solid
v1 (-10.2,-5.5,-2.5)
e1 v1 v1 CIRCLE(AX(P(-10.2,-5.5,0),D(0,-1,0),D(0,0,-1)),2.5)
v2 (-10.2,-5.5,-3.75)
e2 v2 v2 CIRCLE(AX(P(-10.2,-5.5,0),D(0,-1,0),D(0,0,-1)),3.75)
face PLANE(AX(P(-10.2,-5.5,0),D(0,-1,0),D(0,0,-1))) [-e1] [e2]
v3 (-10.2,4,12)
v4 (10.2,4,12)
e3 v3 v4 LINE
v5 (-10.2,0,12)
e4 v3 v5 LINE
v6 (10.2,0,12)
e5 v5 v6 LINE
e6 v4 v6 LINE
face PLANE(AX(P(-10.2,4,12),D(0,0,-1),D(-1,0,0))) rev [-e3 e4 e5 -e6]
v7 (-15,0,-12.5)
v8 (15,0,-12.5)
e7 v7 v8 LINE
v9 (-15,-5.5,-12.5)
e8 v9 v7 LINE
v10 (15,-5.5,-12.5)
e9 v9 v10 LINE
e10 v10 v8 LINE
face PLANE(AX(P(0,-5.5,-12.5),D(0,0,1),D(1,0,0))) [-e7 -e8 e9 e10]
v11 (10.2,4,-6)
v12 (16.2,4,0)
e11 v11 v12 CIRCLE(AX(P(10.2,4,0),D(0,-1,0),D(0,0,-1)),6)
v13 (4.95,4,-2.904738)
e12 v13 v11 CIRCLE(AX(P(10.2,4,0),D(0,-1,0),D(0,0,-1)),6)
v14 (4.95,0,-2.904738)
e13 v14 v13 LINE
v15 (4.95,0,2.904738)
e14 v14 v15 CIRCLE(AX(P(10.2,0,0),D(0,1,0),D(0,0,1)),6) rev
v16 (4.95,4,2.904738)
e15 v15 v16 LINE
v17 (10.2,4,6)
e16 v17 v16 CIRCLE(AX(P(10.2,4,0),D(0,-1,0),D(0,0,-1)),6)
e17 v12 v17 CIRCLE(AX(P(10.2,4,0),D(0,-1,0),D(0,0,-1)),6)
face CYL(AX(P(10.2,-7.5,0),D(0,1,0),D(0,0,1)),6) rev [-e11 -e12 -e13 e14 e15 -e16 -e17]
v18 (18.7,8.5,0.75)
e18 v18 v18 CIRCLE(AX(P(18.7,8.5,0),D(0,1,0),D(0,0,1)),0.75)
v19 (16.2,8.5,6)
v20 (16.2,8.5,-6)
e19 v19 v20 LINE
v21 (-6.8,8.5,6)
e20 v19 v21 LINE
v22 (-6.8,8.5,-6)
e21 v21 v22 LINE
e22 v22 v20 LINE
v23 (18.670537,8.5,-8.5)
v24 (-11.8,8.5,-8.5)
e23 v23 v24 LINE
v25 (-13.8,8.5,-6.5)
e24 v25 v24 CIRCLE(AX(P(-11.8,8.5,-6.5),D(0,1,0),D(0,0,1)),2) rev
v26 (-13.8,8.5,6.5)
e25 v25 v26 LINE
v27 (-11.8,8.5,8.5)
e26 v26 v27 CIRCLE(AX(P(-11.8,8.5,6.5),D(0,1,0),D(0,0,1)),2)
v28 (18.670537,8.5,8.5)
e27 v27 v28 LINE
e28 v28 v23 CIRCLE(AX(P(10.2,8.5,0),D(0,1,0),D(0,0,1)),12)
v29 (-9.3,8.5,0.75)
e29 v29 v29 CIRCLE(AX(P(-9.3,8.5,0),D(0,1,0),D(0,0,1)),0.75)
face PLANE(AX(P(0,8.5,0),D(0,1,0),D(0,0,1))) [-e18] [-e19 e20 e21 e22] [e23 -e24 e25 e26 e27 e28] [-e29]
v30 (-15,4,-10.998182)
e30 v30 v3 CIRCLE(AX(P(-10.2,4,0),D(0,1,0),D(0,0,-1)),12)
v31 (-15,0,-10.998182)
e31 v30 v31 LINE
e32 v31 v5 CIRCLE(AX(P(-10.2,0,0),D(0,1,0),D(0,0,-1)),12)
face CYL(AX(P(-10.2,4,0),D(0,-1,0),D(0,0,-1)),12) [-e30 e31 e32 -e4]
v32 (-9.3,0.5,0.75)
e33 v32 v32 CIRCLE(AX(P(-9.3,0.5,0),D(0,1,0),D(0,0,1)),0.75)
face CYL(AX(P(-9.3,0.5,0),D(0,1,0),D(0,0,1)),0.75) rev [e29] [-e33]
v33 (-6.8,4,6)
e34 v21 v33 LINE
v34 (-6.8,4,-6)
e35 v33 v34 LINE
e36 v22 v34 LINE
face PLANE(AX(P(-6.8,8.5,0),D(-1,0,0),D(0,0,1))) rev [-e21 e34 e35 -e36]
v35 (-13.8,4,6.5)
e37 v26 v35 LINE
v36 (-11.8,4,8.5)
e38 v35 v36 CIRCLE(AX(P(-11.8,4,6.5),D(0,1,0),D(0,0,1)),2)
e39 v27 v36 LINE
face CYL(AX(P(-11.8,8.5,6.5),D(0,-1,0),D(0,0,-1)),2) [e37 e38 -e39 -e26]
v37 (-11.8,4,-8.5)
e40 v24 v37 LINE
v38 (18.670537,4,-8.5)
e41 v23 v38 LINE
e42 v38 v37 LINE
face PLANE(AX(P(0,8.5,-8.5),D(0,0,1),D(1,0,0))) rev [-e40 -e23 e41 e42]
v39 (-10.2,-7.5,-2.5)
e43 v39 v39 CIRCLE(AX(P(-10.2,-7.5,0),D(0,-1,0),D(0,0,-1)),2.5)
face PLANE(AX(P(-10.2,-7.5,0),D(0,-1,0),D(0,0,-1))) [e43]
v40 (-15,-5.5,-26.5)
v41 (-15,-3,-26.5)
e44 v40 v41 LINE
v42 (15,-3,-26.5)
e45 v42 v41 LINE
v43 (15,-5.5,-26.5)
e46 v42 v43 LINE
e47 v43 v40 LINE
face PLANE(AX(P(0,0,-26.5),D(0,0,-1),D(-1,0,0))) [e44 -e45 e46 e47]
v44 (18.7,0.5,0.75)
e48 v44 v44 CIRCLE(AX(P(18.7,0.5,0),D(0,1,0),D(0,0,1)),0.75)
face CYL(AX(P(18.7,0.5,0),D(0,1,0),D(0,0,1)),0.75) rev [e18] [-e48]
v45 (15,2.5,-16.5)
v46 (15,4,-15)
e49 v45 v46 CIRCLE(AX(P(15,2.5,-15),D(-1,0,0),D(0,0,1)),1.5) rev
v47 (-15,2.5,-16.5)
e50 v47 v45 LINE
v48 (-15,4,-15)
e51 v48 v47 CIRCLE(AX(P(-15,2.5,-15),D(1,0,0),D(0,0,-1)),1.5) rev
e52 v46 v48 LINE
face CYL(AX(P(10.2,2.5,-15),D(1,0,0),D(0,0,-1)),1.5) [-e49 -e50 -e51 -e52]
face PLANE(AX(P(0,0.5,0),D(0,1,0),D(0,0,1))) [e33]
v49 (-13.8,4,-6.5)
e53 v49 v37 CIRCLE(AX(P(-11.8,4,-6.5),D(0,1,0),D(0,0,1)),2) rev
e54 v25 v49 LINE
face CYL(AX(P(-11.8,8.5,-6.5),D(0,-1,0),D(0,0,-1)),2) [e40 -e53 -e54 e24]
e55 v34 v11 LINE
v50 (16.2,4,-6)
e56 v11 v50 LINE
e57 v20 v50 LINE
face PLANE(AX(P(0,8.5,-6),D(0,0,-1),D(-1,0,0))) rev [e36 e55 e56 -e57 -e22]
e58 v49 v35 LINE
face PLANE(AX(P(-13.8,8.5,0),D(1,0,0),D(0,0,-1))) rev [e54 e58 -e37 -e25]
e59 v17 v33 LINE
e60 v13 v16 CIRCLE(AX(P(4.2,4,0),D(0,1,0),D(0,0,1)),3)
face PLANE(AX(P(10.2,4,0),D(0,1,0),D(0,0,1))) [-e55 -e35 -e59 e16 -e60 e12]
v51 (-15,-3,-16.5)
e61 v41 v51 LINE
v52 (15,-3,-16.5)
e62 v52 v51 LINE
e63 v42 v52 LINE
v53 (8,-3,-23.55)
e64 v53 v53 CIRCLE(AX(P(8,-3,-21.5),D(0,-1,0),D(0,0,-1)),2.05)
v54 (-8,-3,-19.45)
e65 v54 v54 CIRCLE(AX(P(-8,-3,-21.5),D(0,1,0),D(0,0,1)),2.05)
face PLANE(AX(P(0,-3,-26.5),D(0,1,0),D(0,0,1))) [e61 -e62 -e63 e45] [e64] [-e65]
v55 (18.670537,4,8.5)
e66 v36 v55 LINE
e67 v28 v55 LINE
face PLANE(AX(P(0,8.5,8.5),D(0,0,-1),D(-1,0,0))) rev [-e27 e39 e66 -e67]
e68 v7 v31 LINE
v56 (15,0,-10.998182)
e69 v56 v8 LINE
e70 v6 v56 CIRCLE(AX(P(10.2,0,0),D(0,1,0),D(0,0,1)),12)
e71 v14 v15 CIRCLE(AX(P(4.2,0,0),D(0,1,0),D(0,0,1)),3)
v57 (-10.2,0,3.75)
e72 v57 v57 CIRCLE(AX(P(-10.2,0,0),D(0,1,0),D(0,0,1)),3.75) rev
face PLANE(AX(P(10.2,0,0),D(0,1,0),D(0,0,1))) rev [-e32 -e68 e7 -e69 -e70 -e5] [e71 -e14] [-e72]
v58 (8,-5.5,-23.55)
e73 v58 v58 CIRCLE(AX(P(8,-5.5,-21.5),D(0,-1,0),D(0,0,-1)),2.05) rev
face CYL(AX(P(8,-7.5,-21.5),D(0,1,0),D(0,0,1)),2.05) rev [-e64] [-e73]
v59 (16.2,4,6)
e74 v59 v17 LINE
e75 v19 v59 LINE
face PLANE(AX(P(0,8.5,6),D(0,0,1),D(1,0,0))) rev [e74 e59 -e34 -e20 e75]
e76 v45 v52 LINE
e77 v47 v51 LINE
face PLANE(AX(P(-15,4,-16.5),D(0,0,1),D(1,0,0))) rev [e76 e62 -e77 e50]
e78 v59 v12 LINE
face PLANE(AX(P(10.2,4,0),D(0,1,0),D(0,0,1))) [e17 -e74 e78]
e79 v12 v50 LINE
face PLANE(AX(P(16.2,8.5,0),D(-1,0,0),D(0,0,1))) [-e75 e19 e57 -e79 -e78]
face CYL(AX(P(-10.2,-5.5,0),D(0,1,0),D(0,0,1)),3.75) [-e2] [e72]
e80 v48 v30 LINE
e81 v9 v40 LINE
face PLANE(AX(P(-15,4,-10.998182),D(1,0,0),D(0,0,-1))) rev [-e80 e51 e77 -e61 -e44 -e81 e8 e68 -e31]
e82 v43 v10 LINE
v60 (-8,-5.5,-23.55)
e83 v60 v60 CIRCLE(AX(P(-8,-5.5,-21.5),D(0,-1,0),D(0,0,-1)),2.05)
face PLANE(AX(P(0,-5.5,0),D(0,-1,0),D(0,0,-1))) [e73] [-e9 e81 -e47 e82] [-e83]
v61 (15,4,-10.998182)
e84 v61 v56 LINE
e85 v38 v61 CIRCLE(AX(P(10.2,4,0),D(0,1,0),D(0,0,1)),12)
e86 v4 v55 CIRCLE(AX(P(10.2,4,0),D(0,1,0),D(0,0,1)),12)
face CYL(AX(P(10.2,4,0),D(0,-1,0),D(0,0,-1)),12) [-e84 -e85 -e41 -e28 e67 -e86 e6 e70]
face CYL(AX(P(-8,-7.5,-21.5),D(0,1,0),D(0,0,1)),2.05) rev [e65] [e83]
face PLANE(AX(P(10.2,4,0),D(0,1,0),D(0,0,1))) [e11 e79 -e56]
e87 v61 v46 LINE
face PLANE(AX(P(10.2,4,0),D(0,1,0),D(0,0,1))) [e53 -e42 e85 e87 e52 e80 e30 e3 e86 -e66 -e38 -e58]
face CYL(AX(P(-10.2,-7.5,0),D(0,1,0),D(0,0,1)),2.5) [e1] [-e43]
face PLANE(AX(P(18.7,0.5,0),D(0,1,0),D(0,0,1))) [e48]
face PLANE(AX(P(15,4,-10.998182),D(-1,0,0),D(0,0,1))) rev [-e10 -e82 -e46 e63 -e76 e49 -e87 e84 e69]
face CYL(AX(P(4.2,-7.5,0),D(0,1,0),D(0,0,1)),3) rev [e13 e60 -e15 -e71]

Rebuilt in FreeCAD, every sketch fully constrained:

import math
import FreeCAD as App
import Part
import Sketcher
Q = App.Units.Quantity


def edges_at(feature, points):
    """Names of the edges that pass closest to the given points."""
    edges = feature.Shape.Edges
    near = lambda p: min(range(len(edges)), key=lambda i: edges[i].distToShape(Part.Vertex(*p))[0])
    return sorted({f"Edge{near(p) + 1}" for p in points})

doc = App.newDocument("Part")
body = doc.addObject("PartDesign::Body", "Body")

# Sketch on XZ plane
sketch1 = body.newObject("Sketcher::SketchObject", "Sketch")
sketch1.AttachmentSupport = (doc.getObject("XZ_Plane"), [""])
sketch1.MapMode = "FlatFace"
sketch1.addGeometry([
    Part.LineSegment(App.Vector(-15, -16.5, 0), App.Vector(-15, -10.998182, 0)),  # 0
    Part.ArcOfCircle(Part.Circle(App.Vector(-10.2, 0, 0), App.Vector(0, 0, 1), 12), math.radians(90), math.radians(246.421822)),  # 1
    Part.LineSegment(App.Vector(-10.2, 12, 0), App.Vector(10.2, 12, 0)),  # 2
    Part.ArcOfCircle(Part.Circle(App.Vector(10.2, 0, 0), App.Vector(0, 0, 1), 12), math.radians(-66.421822), math.radians(90)),  # 3
    Part.LineSegment(App.Vector(15, -10.998182, 0), App.Vector(15, -16.5, 0)),  # 4
    Part.LineSegment(App.Vector(15, -16.5, 0), App.Vector(-15, -16.5, 0)),  # 5
], False)
sketch1.addConstraint([
    Sketcher.Constraint("Coincident", 0, 2, 1, 2),
    Sketcher.Constraint("Tangent", 1, 1, 2, 1),
    Sketcher.Constraint("Tangent", 2, 2, 3, 2),
    Sketcher.Constraint("Coincident", 3, 1, 4, 1),
    Sketcher.Constraint("Coincident", 4, 2, 5, 1),
    Sketcher.Constraint("Coincident", 5, 2, 0, 1),
    Sketcher.Constraint("Vertical", 0),
    Sketcher.Constraint("Horizontal", 2),
    Sketcher.Constraint("Vertical", 4),
    Sketcher.Constraint("Horizontal", 5),
    Sketcher.Constraint("Equal", 1, 3),
    Sketcher.Constraint("Symmetric", 1, 3, 3, 3, -1, 1),
    Sketcher.Constraint("Horizontal", 0, 2, 3, 1),
    Sketcher.Constraint("Radius", 1, Q("12 mm")),
    Sketcher.Constraint("DistanceX", 5, 2, 5, 1, Q("30 mm")),
    Sketcher.Constraint("DistanceX", 2, 1, 2, 2, Q("20.4 mm")),
    Sketcher.Constraint("DistanceY", 4, 2, -1, 1, Q("16.5 mm")),
])
pad1 = body.newObject("PartDesign::Pad", "Pad")
pad1.Profile = sketch1
pad1.Length = 4
pad1.Reversed = True

# Sketch on XZ plane
sketch2 = body.newObject("Sketcher::SketchObject", "Sketch001")
sketch2.AttachmentSupport = (doc.getObject("XZ_Plane"), [""])
sketch2.MapMode = "FlatFace"
sketch2.addGeometry(Part.Circle(App.Vector(-10.2, 0, 0), App.Vector(0, 0, 1), 3.75), False)
sketch2.addConstraint([
    Sketcher.Constraint("PointOnObject", 0, 3, -1),
    Sketcher.Constraint("Diameter", 0, Q("7.5 mm")),
    Sketcher.Constraint("DistanceX", 0, 3, -1, 1, Q("10.2 mm")),
])
pad2 = body.newObject("PartDesign::Pad", "Pad001")
pad2.Profile = sketch2
pad2.Length = 5.5

# Sketch on XZ plane
sketch3 = body.newObject("Sketcher::SketchObject", "Sketch002")
sketch3.AttachmentSupport = (doc.getObject("XZ_Plane"), [""])
sketch3.MapMode = "FlatFace"
sketch3.AttachmentOffset = App.Placement(App.Vector(0, 0, 5.5), App.Rotation())
sketch3.addGeometry(Part.Circle(App.Vector(-10.2, 0, 0), App.Vector(0, 0, 1), 2.5), False)
sketch3.addConstraint([
    Sketcher.Constraint("PointOnObject", 0, 3, -1),
    Sketcher.Constraint("Diameter", 0, Q("5 mm")),
    Sketcher.Constraint("DistanceX", 0, 3, -1, 1, Q("10.2 mm")),
])
pad3 = body.newObject("PartDesign::Pad", "Pad002")
pad3.Profile = sketch3
pad3.Length = 2

# Sketch on XZ plane
sketch4 = body.newObject("Sketcher::SketchObject", "Sketch003")
sketch4.AttachmentSupport = (doc.getObject("XZ_Plane"), [""])
sketch4.MapMode = "FlatFace"
sketch4.AttachmentOffset = App.Placement(App.Vector(0, 0, -4), App.Rotation())
sketch4.addGeometry([
    Part.ArcOfCircle(Part.Circle(App.Vector(10.2, 0, 0), App.Vector(0, 0, 1), 6), math.radians(-151.044976), math.radians(151.044976)),
    Part.ArcOfCircle(Part.Circle(App.Vector(4.2, 0, 0), App.Vector(0, 0, 1), 3), math.radians(75.522488), math.radians(284.477512)),
], False)
sketch4.addConstraint([
    Sketcher.Constraint("Coincident", 0, 1, 1, 2),
    Sketcher.Constraint("Coincident", 1, 1, 0, 2),
    Sketcher.Constraint("Symmetric", 0, 1, 1, 1, -1),
    Sketcher.Constraint("Radius", 0, Q("6 mm")),
    Sketcher.Constraint("Radius", 1, Q("3 mm")),
    Sketcher.Constraint("DistanceX", 1, 3, 0, 3, Q("6 mm")),
    Sketcher.Constraint("DistanceX", -1, 1, 0, 3, Q("10.2 mm")),
])
pocket1 = body.newObject("PartDesign::Pocket", "Pocket")
pocket1.Profile = sketch4
pocket1.Type = "ThroughAll"
pocket1.Reversed = True

# Sketch on XZ plane
sketch5 = body.newObject("Sketcher::SketchObject", "Sketch004")
sketch5.AttachmentSupport = (doc.getObject("XZ_Plane"), [""])
sketch5.MapMode = "FlatFace"
sketch5.AttachmentOffset = App.Placement(App.Vector(0, 0, -4), App.Rotation())
sketch5.addGeometry([
    Part.ArcOfCircle(Part.Circle(App.Vector(10.2, 0, 0), App.Vector(0, 0, 1), 12), math.radians(-45.099472), math.radians(45.099472)),  # 0
    Part.LineSegment(App.Vector(18.670537, -8.5, 0), App.Vector(-11.8, -8.5, 0)),  # 1
    Part.ArcOfCircle(Part.Circle(App.Vector(-11.8, -6.5, 0), App.Vector(0, 0, 1), 2), math.radians(-180), math.radians(-90)),  # 2
    Part.LineSegment(App.Vector(-13.8, -6.5, 0), App.Vector(-13.8, 6.5, 0)),  # 3
    Part.ArcOfCircle(Part.Circle(App.Vector(-11.8, 6.5, 0), App.Vector(0, 0, 1), 2), math.radians(90), math.radians(180)),  # 4
    Part.LineSegment(App.Vector(-11.8, 8.5, 0), App.Vector(18.670537, 8.5, 0)),  # 5
    Part.LineSegment(App.Vector(16.2, -6, 0), App.Vector(16.2, 6, 0)),  # 6
    Part.LineSegment(App.Vector(16.2, 6, 0), App.Vector(-6.8, 6, 0)),  # 7
    Part.LineSegment(App.Vector(-6.8, 6, 0), App.Vector(-6.8, -6, 0)),  # 8
    Part.LineSegment(App.Vector(-6.8, -6, 0), App.Vector(16.2, -6, 0)),  # 9
], False)
sketch5.addConstraint([
    Sketcher.Constraint("Coincident", 0, 1, 1, 1),
    Sketcher.Constraint("Tangent", 1, 2, 2, 2),
    Sketcher.Constraint("Tangent", 2, 1, 3, 1),
    Sketcher.Constraint("Tangent", 3, 2, 4, 2),
    Sketcher.Constraint("Tangent", 4, 1, 5, 1),
    Sketcher.Constraint("Coincident", 5, 2, 0, 2),
    Sketcher.Constraint("Coincident", 6, 2, 7, 1),
    Sketcher.Constraint("Coincident", 7, 2, 8, 1),
    Sketcher.Constraint("Coincident", 8, 2, 9, 1),
    Sketcher.Constraint("Coincident", 9, 2, 6, 1),
    Sketcher.Constraint("Horizontal", 1),
    Sketcher.Constraint("Vertical", 3),
    Sketcher.Constraint("Horizontal", 5),
    Sketcher.Constraint("Vertical", 6),
    Sketcher.Constraint("Horizontal", 7),
    Sketcher.Constraint("Vertical", 8),
    Sketcher.Constraint("Horizontal", 9),
    Sketcher.Constraint("Equal", 2, 4),
    Sketcher.Constraint("Symmetric", 0, 1, 5, 2, -1),
    Sketcher.Constraint("Radius", 0, Q("12 mm")),
    Sketcher.Constraint("Radius", 2, Q("2 mm")),
    Sketcher.Constraint("DistanceX", 7, 2, 7, 1, Q("23 mm")),
    Sketcher.Constraint("DistanceY", 3, 1, 3, 2, Q("13 mm")),
    Sketcher.Constraint("DistanceY", 6, 1, 6, 2, Q("12 mm")),
    Sketcher.Constraint("DistanceY", -1, 1, 6, 2, Q("6 mm")),
    Sketcher.Constraint("DistanceX", 2, 3, 0, 3, Q("22 mm")),
    Sketcher.Constraint("DistanceX", 0, 3, 6, 2, Q("6 mm")),
    Sketcher.Constraint("DistanceX", -1, 1, 0, 3, Q("10.2 mm")),
])
pad4 = body.newObject("PartDesign::Pad", "Pad003")
pad4.Profile = sketch5
pad4.Length = 4.5
pad4.Reversed = True

# Sketch on XZ plane
sketch6 = body.newObject("Sketcher::SketchObject", "Sketch005")
sketch6.AttachmentSupport = (doc.getObject("XZ_Plane"), [""])
sketch6.MapMode = "FlatFace"
sketch6.AttachmentOffset = App.Placement(App.Vector(0, 0, -8.5), App.Rotation())
sketch6.addGeometry([
    Part.Circle(App.Vector(-9.3, 0, 0), App.Vector(0, 0, 1), 0.75),
    Part.Circle(App.Vector(18.7, 0, 0), App.Vector(0, 0, 1), 0.75),
], False)
sketch6.addConstraint([
    Sketcher.Constraint("Equal", 0, 1),
    Sketcher.Constraint("PointOnObject", 0, 3, -1),
    Sketcher.Constraint("PointOnObject", 1, 3, -1),
    Sketcher.Constraint("Diameter", 0, Q("1.5 mm")),
    Sketcher.Constraint("DistanceX", 0, 3, 1, 3, Q("28 mm")),
    Sketcher.Constraint("DistanceX", 0, 3, -1, 1, Q("9.3 mm")),
])
pocket2 = body.newObject("PartDesign::Pocket", "Pocket001")
pocket2.Profile = sketch6
pocket2.Length = 8
pocket2.Reversed = True

# Sketch on XZ plane
sketch7 = body.newObject("Sketcher::SketchObject", "Sketch006")
sketch7.AttachmentSupport = (doc.getObject("XZ_Plane"), [""])
sketch7.MapMode = "FlatFace"
sketch7.addGeometry([
    Part.LineSegment(App.Vector(-15, -12.5, 0), App.Vector(-15, -16.5, 0)),
    Part.LineSegment(App.Vector(-15, -16.5, 0), App.Vector(15, -16.5, 0)),
    Part.LineSegment(App.Vector(15, -16.5, 0), App.Vector(15, -12.5, 0)),
    Part.LineSegment(App.Vector(15, -12.5, 0), App.Vector(-15, -12.5, 0)),
], False)
sketch7.addConstraint([
    Sketcher.Constraint("Coincident", 0, 2, 1, 1),
    Sketcher.Constraint("Coincident", 1, 2, 2, 1),
    Sketcher.Constraint("Coincident", 2, 2, 3, 1),
    Sketcher.Constraint("Coincident", 3, 2, 0, 1),
    Sketcher.Constraint("Vertical", 0),
    Sketcher.Constraint("Horizontal", 1),
    Sketcher.Constraint("Vertical", 2),
    Sketcher.Constraint("Horizontal", 3),
    Sketcher.Constraint("DistanceX", 1, 1, 1, 2, Q("30 mm")),
    Sketcher.Constraint("DistanceY", 0, 2, 0, 1, Q("4 mm")),
    Sketcher.Constraint("DistanceX", 0, 2, -1, 1, Q("15 mm")),
    Sketcher.Constraint("DistanceY", 0, 2, -1, 1, Q("16.5 mm")),
])
pad5 = body.newObject("PartDesign::Pad", "Pad004")
pad5.Profile = sketch7
pad5.Length = 5.5

# Sketch on XY plane
sketch8 = body.newObject("Sketcher::SketchObject", "Sketch007")
sketch8.AttachmentSupport = (doc.getObject("XY_Plane"), [""])
sketch8.MapMode = "FlatFace"
sketch8.AttachmentOffset = App.Placement(App.Vector(0, 0, -16.5), App.Rotation())
sketch8.addGeometry([
    Part.LineSegment(App.Vector(15, -3, 0), App.Vector(15, -5.5, 0)),
    Part.LineSegment(App.Vector(15, -5.5, 0), App.Vector(-15, -5.5, 0)),
    Part.LineSegment(App.Vector(-15, -5.5, 0), App.Vector(-15, -3, 0)),
    Part.LineSegment(App.Vector(-15, -3, 0), App.Vector(15, -3, 0)),
], False)
sketch8.addConstraint([
    Sketcher.Constraint("Coincident", 0, 2, 1, 1),
    Sketcher.Constraint("Coincident", 1, 2, 2, 1),
    Sketcher.Constraint("Coincident", 2, 2, 3, 1),
    Sketcher.Constraint("Coincident", 3, 2, 0, 1),
    Sketcher.Constraint("Vertical", 0),
    Sketcher.Constraint("Horizontal", 1),
    Sketcher.Constraint("Vertical", 2),
    Sketcher.Constraint("Horizontal", 3),
    Sketcher.Constraint("DistanceX", 1, 2, 1, 1, Q("30 mm")),
    Sketcher.Constraint("DistanceY", 0, 2, 0, 1, Q("2.5 mm")),
    Sketcher.Constraint("DistanceX", -1, 1, 0, 2, Q("15 mm")),
    Sketcher.Constraint("DistanceY", 2, 2, -1, 1, Q("3 mm")),
])
pad6 = body.newObject("PartDesign::Pad", "Pad005")
pad6.Profile = sketch8
pad6.Length = 10
pad6.Reversed = True

# Sketch on XZ plane
sketch9 = body.newObject("Sketcher::SketchObject", "Sketch008")
sketch9.AttachmentSupport = (doc.getObject("XZ_Plane"), [""])
sketch9.MapMode = "FlatFace"
sketch9.AttachmentOffset = App.Placement(App.Vector(0, 0, 3), App.Rotation())
sketch9.addGeometry([
    Part.Circle(App.Vector(-8, -21.5, 0), App.Vector(0, 0, 1), 2.05),
    Part.Circle(App.Vector(8, -21.5, 0), App.Vector(0, 0, 1), 2.05),
], False)
sketch9.addConstraint([
    Sketcher.Constraint("Equal", 0, 1),
    Sketcher.Constraint("Symmetric", 0, 3, 1, 3, -2),
    Sketcher.Constraint("Diameter", 0, Q("4.1 mm")),
    Sketcher.Constraint("DistanceX", 0, 3, -1, 1, Q("8 mm")),
    Sketcher.Constraint("DistanceY", 0, 3, -1, 1, Q("21.5 mm")),
])
pocket3 = body.newObject("PartDesign::Pocket", "Pocket002")
pocket3.Profile = sketch9
pocket3.Type = "ThroughAll"
pocket3.Reversed = True
doc.recompute()

fillet = body.newObject("PartDesign::Fillet", "Fillet")
fillet.Base = (pocket3, edges_at(pocket3, [(0, 4, -16.5)]))
fillet.Radius = 1.5

doc.recompute()
